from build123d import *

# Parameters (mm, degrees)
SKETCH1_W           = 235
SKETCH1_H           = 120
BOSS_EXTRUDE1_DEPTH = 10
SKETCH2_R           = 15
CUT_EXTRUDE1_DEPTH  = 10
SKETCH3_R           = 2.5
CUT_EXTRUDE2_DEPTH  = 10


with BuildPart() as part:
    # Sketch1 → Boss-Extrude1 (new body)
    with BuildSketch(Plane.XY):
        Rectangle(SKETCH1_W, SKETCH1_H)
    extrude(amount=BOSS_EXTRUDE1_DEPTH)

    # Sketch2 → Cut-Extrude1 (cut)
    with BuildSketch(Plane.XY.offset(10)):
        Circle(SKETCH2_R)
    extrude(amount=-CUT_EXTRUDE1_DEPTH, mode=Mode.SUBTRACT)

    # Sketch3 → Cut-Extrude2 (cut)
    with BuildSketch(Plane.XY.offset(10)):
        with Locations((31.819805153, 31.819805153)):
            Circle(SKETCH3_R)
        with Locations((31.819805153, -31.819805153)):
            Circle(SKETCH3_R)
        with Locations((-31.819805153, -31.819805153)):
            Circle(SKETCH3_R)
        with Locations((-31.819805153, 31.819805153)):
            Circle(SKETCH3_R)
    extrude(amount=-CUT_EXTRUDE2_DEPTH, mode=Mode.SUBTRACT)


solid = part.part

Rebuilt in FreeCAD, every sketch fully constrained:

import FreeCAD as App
import Part
import Sketcher

doc = App.newDocument("Part")
body = doc.addObject("PartDesign::Body", "Body")

sketch1 = body.newObject("Sketcher::SketchObject", "Sketch")
sketch1.AttachmentSupport = (doc.getObject("XY_Plane"), [""])
sketch1.MapMode = "FlatFace"
sketch1.addGeometry([
    Part.LineSegment(App.Vector(-118, 60, 0), App.Vector(-118, -60, 0)),
    Part.LineSegment(App.Vector(-118, -60, 0), App.Vector(118, -60, 0)),
    Part.LineSegment(App.Vector(118, -60, 0), App.Vector(118, 60, 0)),
    Part.LineSegment(App.Vector(118, 60, 0), App.Vector(-118, 60, 0)),
], False)
sketch1.addConstraint([
    Sketcher.Constraint("Coincident", 0, 2, 1, 1),
    Sketcher.Constraint("Coincident", 1, 2, 2, 1),
    Sketcher.Constraint("Coincident", 2, 2, 3, 1),
    Sketcher.Constraint("Coincident", 3, 2, 0, 1),
    Sketcher.Constraint("Vertical", 0),
    Sketcher.Constraint("Horizontal", 1),
    Sketcher.Constraint("Vertical", 2),
    Sketcher.Constraint("Horizontal", 3),
    Sketcher.Constraint("Symmetric", 0, 2, 2, 2, -1, 1),
    Sketcher.Constraint("DistanceX", 1, 1, 1, 2, 235.0),
    Sketcher.Constraint("DistanceY", 0, 2, 0, 1, 120.0),
])
pad1 = body.newObject("PartDesign::Pad", "Pad")
pad1.Profile = sketch1
pad1.Length = 10

sketch2 = body.newObject("Sketcher::SketchObject", "Sketch001")
sketch2.AttachmentSupport = (doc.getObject("XY_Plane"), [""])
sketch2.MapMode = "FlatFace"
sketch2.AttachmentOffset = App.Placement(App.Vector(0, 0, 10), App.Rotation())
sketch2.addGeometry(Part.Circle(App.Vector(0, 0, 0), App.Vector(0, 0, 1), 15), False)
sketch2.addConstraint([
    Sketcher.Constraint("Coincident", 0, 3, -1, 1),
    Sketcher.Constraint("Diameter", 0, 30.0),
])
pocket1 = body.newObject("PartDesign::Pocket", "Pocket")
pocket1.Profile = sketch2
pocket1.Length = 10

sketch3 = body.newObject("Sketcher::SketchObject", "Sketch002")
sketch3.AttachmentSupport = (doc.getObject("XY_Plane"), [""])
sketch3.MapMode = "FlatFace"
sketch3.AttachmentOffset = App.Placement(App.Vector(0, 0, 10), App.Rotation())
sketch3.addGeometry([
    Part.Circle(App.Vector(31.8, 31.8, 0), App.Vector(0, 0, 1), 2.5),
    Part.Circle(App.Vector(31.8, -31.8, 0), App.Vector(0, 0, 1), 2.5),
    Part.Circle(App.Vector(-31.8, -31.8, 0), App.Vector(0, 0, 1), 2.5),
    Part.Circle(App.Vector(-31.8, 31.8, 0), App.Vector(0, 0, 1), 2.5),
], False)
sketch3.addConstraint([
    Sketcher.Constraint("Equal", 0, 1),
    Sketcher.Constraint("Equal", 1, 2),
    Sketcher.Constraint("Equal", 2, 3),
    Sketcher.Constraint("Symmetric", 0, 3, 2, 3, -1, 1),
    Sketcher.Constraint("Symmetric", 1, 3, 3, 3, -1, 1),
    Sketcher.Constraint("Symmetric", 1, 3, 2, 3, -2),
    Sketcher.Constraint("Diameter", 0, 5.0),
    Sketcher.Constraint("DistanceY", 1, 3, 0, 3, 63.63961),
    Sketcher.Constraint("DistanceX", 2, 3, 1, 3, 63.63961),
])
pocket2 = body.newObject("PartDesign::Pocket", "Pocket001")
pocket2.Profile = sketch3
pocket2.Length = 10

doc.recompute()
